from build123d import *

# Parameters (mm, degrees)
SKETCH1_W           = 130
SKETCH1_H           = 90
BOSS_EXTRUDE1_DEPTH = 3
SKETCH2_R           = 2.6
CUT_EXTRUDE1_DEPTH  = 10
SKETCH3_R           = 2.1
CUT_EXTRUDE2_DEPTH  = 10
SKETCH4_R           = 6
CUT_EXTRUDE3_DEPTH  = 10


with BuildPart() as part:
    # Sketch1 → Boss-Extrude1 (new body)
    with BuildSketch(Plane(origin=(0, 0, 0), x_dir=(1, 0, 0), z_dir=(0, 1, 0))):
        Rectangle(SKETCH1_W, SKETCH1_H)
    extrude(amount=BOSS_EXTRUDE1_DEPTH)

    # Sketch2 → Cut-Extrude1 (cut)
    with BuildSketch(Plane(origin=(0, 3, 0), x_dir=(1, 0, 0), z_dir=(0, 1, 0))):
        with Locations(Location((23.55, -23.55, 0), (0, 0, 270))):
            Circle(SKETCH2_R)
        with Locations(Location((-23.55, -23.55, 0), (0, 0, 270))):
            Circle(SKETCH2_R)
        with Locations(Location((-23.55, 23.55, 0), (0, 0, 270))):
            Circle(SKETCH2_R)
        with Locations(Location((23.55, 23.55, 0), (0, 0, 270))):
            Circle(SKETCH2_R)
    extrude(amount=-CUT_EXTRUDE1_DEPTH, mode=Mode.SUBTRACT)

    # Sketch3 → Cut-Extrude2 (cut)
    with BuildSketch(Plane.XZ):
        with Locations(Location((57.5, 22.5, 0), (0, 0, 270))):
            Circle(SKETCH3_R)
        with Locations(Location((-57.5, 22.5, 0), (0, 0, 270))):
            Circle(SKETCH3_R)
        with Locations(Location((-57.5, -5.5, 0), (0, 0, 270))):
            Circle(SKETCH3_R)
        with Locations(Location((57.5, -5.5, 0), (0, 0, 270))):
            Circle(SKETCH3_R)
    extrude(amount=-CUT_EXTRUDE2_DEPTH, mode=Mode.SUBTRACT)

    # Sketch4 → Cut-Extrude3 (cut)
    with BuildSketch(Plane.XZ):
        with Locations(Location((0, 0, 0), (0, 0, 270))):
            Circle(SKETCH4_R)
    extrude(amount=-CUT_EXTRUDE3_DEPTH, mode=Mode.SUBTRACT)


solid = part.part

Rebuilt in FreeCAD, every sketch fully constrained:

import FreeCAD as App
import Part
import Sketcher

V = App.Vector
Q = App.Units.Quantity


def add_polygon(sketch, points):
    """Adds a closed chain of lines whose ends are joined by coincident constraints."""
    first, n = sketch.GeometryCount, len(points)
    for a, b in zip(points, points[1:] + points[:1]):
        sketch.addGeometry(Part.LineSegment(App.Vector(*a, 0), App.Vector(*b, 0)), False)
    for i in range(n):
        sketch.addConstraint(Sketcher.Constraint("Coincident", first + i, 2, first + (i + 1) % n, 1))

doc = App.newDocument("Part")
params = doc.addObject("Spreadsheet::Sheet", "Params")
for row, (alias, value) in enumerate([
    ("sketch1_width", "130 mm"),
    ("sketch1_height", "90 mm"),
    ("pad1_length", "3 mm"),
    ("sketch2_diameter", "5.2 mm"),
    ("pocket1_length", "10 mm"),
    ("sketch3_diameter", "4.2 mm"),
    ("pocket2_length", "10 mm"),
    ("sketch4_diameter", "12 mm"),
    ("pocket3_length", "10 mm"),
], start=1):
    params.set(f"A{row}", alias)
    params.set(f"B{row}", "=" + value)
    params.setAlias(f"B{row}", alias)

body = doc.addObject("PartDesign::Body", "Body")

sketch1 = body.newObject("Sketcher::SketchObject", "Sketch")
sketch1.AttachmentSupport = (doc.getObject("XZ_Plane"), [""])
sketch1.MapMode = "FlatFace"
add_polygon(sketch1, [(-65, -45), (-65, 45), (65, 45), (65, -45)])
sketch1.addConstraint([
    Sketcher.Constraint("Vertical", 0),
    Sketcher.Constraint("Horizontal", 1),
    Sketcher.Constraint("Vertical", 2),
    Sketcher.Constraint("Horizontal", 3),
    Sketcher.Constraint("Symmetric", 0, 2, 2, 2, -1, 1),
    Sketcher.Constraint("DistanceX", 1, 1, 1, 2, Q("130 mm")),
    Sketcher.Constraint("DistanceY", 0, 1, 0, 2, Q("90 mm")),
])
sketch1.setExpression("Constraints[9]", "Params.sketch1_width")
sketch1.setExpression("Constraints[10]", "Params.sketch1_height")
pad1 = body.newObject("PartDesign::Pad", "Pad")
pad1.Profile = sketch1
pad1.setExpression("Length", "Params.pad1_length")
pad1.Reversed = True

sketch2 = body.newObject("Sketcher::SketchObject", "Sketch001")
sketch2.AttachmentSupport = (doc.getObject("XZ_Plane"), [""])
sketch2.MapMode = "FlatFace"
sketch2.AttachmentOffset = App.Placement(V(0, 0, -3), App.Rotation())
sketch2.addGeometry([
    Part.Circle(V(23.6, 23.6, 0), V(0, 0, 1), 2.6),
    Part.Circle(V(-23.6, 23.6, 0), V(0, 0, 1), 2.6),
    Part.Circle(V(-23.6, -23.6, 0), V(0, 0, 1), 2.6),
    Part.Circle(V(23.6, -23.6, 0), V(0, 0, 1), 2.6),
], False)
sketch2.addConstraint([
    Sketcher.Constraint("Equal", 0, 1),
    Sketcher.Constraint("Equal", 1, 2),
    Sketcher.Constraint("Equal", 2, 3),
    Sketcher.Constraint("Symmetric", 0, 3, 2, 3, -1, 1),
    Sketcher.Constraint("Symmetric", 1, 3, 3, 3, -1, 1),
    Sketcher.Constraint("Symmetric", 0, 3, 1, 3, -2),
    Sketcher.Constraint("Diameter", 0, Q("5.2 mm")),
    Sketcher.Constraint("DistanceX", 1, 3, 0, 3, Q("47.1 mm")),
    Sketcher.Constraint("DistanceY", 2, 3, 1, 3, Q("47.1 mm")),
])
sketch2.setExpression("Constraints[6]", "Params.sketch2_diameter")
pocket1 = body.newObject("PartDesign::Pocket", "Pocket")
pocket1.Profile = sketch2
pocket1.setExpression("Length", "Params.pocket1_length")
pocket1.Reversed = True

sketch3 = body.newObject("Sketcher::SketchObject", "Sketch002")
sketch3.AttachmentSupport = (doc.getObject("XZ_Plane"), [""])
sketch3.MapMode = "FlatFace"
sketch3.addGeometry([
    Part.Circle(V(57.5, 22.5, 0), V(0, 0, 1), 2.1),
    Part.Circle(V(-57.5, 22.5, 0), V(0, 0, 1), 2.1),
    Part.Circle(V(-57.5, -5.5, 0), V(0, 0, 1), 2.1),
    Part.Circle(V(57.5, -5.5, 0), V(0, 0, 1), 2.1),
], False)
sketch3.addConstraint([
    Sketcher.Constraint("Equal", 0, 1),
    Sketcher.Constraint("Equal", 1, 2),
    Sketcher.Constraint("Equal", 2, 3),
    Sketcher.Constraint("Symmetric", 0, 3, 1, 3, -2),
    Sketcher.Constraint("Symmetric", 2, 3, 3, 3, -2),
    Sketcher.Constraint("Vertical", 1, 3, 2, 3),
    Sketcher.Constraint("Diameter", 0, Q("4.2 mm")),
    Sketcher.Constraint("DistanceX", 1, 3, 0, 3, Q("115 mm")),
    Sketcher.Constraint("DistanceY", 2, 3, 1, 3, Q("28 mm")),
    Sketcher.Constraint("DistanceY", -1, 1, 0, 3, Q("22.5 mm")),
])
sketch3.setExpression("Constraints[6]", "Params.sketch3_diameter")
pocket2 = body.newObject("PartDesign::Pocket", "Pocket001")
pocket2.Profile = sketch3
pocket2.setExpression("Length", "Params.pocket2_length")

sketch4 = body.newObject("Sketcher::SketchObject", "Sketch003")
sketch4.AttachmentSupport = (doc.getObject("XZ_Plane"), [""])
sketch4.MapMode = "FlatFace"
sketch4.addGeometry(Part.Circle(V(0, 0, 0), V(0, 0, 1), 6), False)
sketch4.addConstraint([
    Sketcher.Constraint("Coincident", 0, 3, -1, 1),
    Sketcher.Constraint("Diameter", 0, Q("12 mm")),
])
sketch4.setExpression("Constraints[1]", "Params.sketch4_diameter")
pocket3 = body.newObject("PartDesign::Pocket", "Pocket002")
pocket3.Profile = sketch4
pocket3.setExpression("Length", "Params.pocket3_length")

doc.recompute()
